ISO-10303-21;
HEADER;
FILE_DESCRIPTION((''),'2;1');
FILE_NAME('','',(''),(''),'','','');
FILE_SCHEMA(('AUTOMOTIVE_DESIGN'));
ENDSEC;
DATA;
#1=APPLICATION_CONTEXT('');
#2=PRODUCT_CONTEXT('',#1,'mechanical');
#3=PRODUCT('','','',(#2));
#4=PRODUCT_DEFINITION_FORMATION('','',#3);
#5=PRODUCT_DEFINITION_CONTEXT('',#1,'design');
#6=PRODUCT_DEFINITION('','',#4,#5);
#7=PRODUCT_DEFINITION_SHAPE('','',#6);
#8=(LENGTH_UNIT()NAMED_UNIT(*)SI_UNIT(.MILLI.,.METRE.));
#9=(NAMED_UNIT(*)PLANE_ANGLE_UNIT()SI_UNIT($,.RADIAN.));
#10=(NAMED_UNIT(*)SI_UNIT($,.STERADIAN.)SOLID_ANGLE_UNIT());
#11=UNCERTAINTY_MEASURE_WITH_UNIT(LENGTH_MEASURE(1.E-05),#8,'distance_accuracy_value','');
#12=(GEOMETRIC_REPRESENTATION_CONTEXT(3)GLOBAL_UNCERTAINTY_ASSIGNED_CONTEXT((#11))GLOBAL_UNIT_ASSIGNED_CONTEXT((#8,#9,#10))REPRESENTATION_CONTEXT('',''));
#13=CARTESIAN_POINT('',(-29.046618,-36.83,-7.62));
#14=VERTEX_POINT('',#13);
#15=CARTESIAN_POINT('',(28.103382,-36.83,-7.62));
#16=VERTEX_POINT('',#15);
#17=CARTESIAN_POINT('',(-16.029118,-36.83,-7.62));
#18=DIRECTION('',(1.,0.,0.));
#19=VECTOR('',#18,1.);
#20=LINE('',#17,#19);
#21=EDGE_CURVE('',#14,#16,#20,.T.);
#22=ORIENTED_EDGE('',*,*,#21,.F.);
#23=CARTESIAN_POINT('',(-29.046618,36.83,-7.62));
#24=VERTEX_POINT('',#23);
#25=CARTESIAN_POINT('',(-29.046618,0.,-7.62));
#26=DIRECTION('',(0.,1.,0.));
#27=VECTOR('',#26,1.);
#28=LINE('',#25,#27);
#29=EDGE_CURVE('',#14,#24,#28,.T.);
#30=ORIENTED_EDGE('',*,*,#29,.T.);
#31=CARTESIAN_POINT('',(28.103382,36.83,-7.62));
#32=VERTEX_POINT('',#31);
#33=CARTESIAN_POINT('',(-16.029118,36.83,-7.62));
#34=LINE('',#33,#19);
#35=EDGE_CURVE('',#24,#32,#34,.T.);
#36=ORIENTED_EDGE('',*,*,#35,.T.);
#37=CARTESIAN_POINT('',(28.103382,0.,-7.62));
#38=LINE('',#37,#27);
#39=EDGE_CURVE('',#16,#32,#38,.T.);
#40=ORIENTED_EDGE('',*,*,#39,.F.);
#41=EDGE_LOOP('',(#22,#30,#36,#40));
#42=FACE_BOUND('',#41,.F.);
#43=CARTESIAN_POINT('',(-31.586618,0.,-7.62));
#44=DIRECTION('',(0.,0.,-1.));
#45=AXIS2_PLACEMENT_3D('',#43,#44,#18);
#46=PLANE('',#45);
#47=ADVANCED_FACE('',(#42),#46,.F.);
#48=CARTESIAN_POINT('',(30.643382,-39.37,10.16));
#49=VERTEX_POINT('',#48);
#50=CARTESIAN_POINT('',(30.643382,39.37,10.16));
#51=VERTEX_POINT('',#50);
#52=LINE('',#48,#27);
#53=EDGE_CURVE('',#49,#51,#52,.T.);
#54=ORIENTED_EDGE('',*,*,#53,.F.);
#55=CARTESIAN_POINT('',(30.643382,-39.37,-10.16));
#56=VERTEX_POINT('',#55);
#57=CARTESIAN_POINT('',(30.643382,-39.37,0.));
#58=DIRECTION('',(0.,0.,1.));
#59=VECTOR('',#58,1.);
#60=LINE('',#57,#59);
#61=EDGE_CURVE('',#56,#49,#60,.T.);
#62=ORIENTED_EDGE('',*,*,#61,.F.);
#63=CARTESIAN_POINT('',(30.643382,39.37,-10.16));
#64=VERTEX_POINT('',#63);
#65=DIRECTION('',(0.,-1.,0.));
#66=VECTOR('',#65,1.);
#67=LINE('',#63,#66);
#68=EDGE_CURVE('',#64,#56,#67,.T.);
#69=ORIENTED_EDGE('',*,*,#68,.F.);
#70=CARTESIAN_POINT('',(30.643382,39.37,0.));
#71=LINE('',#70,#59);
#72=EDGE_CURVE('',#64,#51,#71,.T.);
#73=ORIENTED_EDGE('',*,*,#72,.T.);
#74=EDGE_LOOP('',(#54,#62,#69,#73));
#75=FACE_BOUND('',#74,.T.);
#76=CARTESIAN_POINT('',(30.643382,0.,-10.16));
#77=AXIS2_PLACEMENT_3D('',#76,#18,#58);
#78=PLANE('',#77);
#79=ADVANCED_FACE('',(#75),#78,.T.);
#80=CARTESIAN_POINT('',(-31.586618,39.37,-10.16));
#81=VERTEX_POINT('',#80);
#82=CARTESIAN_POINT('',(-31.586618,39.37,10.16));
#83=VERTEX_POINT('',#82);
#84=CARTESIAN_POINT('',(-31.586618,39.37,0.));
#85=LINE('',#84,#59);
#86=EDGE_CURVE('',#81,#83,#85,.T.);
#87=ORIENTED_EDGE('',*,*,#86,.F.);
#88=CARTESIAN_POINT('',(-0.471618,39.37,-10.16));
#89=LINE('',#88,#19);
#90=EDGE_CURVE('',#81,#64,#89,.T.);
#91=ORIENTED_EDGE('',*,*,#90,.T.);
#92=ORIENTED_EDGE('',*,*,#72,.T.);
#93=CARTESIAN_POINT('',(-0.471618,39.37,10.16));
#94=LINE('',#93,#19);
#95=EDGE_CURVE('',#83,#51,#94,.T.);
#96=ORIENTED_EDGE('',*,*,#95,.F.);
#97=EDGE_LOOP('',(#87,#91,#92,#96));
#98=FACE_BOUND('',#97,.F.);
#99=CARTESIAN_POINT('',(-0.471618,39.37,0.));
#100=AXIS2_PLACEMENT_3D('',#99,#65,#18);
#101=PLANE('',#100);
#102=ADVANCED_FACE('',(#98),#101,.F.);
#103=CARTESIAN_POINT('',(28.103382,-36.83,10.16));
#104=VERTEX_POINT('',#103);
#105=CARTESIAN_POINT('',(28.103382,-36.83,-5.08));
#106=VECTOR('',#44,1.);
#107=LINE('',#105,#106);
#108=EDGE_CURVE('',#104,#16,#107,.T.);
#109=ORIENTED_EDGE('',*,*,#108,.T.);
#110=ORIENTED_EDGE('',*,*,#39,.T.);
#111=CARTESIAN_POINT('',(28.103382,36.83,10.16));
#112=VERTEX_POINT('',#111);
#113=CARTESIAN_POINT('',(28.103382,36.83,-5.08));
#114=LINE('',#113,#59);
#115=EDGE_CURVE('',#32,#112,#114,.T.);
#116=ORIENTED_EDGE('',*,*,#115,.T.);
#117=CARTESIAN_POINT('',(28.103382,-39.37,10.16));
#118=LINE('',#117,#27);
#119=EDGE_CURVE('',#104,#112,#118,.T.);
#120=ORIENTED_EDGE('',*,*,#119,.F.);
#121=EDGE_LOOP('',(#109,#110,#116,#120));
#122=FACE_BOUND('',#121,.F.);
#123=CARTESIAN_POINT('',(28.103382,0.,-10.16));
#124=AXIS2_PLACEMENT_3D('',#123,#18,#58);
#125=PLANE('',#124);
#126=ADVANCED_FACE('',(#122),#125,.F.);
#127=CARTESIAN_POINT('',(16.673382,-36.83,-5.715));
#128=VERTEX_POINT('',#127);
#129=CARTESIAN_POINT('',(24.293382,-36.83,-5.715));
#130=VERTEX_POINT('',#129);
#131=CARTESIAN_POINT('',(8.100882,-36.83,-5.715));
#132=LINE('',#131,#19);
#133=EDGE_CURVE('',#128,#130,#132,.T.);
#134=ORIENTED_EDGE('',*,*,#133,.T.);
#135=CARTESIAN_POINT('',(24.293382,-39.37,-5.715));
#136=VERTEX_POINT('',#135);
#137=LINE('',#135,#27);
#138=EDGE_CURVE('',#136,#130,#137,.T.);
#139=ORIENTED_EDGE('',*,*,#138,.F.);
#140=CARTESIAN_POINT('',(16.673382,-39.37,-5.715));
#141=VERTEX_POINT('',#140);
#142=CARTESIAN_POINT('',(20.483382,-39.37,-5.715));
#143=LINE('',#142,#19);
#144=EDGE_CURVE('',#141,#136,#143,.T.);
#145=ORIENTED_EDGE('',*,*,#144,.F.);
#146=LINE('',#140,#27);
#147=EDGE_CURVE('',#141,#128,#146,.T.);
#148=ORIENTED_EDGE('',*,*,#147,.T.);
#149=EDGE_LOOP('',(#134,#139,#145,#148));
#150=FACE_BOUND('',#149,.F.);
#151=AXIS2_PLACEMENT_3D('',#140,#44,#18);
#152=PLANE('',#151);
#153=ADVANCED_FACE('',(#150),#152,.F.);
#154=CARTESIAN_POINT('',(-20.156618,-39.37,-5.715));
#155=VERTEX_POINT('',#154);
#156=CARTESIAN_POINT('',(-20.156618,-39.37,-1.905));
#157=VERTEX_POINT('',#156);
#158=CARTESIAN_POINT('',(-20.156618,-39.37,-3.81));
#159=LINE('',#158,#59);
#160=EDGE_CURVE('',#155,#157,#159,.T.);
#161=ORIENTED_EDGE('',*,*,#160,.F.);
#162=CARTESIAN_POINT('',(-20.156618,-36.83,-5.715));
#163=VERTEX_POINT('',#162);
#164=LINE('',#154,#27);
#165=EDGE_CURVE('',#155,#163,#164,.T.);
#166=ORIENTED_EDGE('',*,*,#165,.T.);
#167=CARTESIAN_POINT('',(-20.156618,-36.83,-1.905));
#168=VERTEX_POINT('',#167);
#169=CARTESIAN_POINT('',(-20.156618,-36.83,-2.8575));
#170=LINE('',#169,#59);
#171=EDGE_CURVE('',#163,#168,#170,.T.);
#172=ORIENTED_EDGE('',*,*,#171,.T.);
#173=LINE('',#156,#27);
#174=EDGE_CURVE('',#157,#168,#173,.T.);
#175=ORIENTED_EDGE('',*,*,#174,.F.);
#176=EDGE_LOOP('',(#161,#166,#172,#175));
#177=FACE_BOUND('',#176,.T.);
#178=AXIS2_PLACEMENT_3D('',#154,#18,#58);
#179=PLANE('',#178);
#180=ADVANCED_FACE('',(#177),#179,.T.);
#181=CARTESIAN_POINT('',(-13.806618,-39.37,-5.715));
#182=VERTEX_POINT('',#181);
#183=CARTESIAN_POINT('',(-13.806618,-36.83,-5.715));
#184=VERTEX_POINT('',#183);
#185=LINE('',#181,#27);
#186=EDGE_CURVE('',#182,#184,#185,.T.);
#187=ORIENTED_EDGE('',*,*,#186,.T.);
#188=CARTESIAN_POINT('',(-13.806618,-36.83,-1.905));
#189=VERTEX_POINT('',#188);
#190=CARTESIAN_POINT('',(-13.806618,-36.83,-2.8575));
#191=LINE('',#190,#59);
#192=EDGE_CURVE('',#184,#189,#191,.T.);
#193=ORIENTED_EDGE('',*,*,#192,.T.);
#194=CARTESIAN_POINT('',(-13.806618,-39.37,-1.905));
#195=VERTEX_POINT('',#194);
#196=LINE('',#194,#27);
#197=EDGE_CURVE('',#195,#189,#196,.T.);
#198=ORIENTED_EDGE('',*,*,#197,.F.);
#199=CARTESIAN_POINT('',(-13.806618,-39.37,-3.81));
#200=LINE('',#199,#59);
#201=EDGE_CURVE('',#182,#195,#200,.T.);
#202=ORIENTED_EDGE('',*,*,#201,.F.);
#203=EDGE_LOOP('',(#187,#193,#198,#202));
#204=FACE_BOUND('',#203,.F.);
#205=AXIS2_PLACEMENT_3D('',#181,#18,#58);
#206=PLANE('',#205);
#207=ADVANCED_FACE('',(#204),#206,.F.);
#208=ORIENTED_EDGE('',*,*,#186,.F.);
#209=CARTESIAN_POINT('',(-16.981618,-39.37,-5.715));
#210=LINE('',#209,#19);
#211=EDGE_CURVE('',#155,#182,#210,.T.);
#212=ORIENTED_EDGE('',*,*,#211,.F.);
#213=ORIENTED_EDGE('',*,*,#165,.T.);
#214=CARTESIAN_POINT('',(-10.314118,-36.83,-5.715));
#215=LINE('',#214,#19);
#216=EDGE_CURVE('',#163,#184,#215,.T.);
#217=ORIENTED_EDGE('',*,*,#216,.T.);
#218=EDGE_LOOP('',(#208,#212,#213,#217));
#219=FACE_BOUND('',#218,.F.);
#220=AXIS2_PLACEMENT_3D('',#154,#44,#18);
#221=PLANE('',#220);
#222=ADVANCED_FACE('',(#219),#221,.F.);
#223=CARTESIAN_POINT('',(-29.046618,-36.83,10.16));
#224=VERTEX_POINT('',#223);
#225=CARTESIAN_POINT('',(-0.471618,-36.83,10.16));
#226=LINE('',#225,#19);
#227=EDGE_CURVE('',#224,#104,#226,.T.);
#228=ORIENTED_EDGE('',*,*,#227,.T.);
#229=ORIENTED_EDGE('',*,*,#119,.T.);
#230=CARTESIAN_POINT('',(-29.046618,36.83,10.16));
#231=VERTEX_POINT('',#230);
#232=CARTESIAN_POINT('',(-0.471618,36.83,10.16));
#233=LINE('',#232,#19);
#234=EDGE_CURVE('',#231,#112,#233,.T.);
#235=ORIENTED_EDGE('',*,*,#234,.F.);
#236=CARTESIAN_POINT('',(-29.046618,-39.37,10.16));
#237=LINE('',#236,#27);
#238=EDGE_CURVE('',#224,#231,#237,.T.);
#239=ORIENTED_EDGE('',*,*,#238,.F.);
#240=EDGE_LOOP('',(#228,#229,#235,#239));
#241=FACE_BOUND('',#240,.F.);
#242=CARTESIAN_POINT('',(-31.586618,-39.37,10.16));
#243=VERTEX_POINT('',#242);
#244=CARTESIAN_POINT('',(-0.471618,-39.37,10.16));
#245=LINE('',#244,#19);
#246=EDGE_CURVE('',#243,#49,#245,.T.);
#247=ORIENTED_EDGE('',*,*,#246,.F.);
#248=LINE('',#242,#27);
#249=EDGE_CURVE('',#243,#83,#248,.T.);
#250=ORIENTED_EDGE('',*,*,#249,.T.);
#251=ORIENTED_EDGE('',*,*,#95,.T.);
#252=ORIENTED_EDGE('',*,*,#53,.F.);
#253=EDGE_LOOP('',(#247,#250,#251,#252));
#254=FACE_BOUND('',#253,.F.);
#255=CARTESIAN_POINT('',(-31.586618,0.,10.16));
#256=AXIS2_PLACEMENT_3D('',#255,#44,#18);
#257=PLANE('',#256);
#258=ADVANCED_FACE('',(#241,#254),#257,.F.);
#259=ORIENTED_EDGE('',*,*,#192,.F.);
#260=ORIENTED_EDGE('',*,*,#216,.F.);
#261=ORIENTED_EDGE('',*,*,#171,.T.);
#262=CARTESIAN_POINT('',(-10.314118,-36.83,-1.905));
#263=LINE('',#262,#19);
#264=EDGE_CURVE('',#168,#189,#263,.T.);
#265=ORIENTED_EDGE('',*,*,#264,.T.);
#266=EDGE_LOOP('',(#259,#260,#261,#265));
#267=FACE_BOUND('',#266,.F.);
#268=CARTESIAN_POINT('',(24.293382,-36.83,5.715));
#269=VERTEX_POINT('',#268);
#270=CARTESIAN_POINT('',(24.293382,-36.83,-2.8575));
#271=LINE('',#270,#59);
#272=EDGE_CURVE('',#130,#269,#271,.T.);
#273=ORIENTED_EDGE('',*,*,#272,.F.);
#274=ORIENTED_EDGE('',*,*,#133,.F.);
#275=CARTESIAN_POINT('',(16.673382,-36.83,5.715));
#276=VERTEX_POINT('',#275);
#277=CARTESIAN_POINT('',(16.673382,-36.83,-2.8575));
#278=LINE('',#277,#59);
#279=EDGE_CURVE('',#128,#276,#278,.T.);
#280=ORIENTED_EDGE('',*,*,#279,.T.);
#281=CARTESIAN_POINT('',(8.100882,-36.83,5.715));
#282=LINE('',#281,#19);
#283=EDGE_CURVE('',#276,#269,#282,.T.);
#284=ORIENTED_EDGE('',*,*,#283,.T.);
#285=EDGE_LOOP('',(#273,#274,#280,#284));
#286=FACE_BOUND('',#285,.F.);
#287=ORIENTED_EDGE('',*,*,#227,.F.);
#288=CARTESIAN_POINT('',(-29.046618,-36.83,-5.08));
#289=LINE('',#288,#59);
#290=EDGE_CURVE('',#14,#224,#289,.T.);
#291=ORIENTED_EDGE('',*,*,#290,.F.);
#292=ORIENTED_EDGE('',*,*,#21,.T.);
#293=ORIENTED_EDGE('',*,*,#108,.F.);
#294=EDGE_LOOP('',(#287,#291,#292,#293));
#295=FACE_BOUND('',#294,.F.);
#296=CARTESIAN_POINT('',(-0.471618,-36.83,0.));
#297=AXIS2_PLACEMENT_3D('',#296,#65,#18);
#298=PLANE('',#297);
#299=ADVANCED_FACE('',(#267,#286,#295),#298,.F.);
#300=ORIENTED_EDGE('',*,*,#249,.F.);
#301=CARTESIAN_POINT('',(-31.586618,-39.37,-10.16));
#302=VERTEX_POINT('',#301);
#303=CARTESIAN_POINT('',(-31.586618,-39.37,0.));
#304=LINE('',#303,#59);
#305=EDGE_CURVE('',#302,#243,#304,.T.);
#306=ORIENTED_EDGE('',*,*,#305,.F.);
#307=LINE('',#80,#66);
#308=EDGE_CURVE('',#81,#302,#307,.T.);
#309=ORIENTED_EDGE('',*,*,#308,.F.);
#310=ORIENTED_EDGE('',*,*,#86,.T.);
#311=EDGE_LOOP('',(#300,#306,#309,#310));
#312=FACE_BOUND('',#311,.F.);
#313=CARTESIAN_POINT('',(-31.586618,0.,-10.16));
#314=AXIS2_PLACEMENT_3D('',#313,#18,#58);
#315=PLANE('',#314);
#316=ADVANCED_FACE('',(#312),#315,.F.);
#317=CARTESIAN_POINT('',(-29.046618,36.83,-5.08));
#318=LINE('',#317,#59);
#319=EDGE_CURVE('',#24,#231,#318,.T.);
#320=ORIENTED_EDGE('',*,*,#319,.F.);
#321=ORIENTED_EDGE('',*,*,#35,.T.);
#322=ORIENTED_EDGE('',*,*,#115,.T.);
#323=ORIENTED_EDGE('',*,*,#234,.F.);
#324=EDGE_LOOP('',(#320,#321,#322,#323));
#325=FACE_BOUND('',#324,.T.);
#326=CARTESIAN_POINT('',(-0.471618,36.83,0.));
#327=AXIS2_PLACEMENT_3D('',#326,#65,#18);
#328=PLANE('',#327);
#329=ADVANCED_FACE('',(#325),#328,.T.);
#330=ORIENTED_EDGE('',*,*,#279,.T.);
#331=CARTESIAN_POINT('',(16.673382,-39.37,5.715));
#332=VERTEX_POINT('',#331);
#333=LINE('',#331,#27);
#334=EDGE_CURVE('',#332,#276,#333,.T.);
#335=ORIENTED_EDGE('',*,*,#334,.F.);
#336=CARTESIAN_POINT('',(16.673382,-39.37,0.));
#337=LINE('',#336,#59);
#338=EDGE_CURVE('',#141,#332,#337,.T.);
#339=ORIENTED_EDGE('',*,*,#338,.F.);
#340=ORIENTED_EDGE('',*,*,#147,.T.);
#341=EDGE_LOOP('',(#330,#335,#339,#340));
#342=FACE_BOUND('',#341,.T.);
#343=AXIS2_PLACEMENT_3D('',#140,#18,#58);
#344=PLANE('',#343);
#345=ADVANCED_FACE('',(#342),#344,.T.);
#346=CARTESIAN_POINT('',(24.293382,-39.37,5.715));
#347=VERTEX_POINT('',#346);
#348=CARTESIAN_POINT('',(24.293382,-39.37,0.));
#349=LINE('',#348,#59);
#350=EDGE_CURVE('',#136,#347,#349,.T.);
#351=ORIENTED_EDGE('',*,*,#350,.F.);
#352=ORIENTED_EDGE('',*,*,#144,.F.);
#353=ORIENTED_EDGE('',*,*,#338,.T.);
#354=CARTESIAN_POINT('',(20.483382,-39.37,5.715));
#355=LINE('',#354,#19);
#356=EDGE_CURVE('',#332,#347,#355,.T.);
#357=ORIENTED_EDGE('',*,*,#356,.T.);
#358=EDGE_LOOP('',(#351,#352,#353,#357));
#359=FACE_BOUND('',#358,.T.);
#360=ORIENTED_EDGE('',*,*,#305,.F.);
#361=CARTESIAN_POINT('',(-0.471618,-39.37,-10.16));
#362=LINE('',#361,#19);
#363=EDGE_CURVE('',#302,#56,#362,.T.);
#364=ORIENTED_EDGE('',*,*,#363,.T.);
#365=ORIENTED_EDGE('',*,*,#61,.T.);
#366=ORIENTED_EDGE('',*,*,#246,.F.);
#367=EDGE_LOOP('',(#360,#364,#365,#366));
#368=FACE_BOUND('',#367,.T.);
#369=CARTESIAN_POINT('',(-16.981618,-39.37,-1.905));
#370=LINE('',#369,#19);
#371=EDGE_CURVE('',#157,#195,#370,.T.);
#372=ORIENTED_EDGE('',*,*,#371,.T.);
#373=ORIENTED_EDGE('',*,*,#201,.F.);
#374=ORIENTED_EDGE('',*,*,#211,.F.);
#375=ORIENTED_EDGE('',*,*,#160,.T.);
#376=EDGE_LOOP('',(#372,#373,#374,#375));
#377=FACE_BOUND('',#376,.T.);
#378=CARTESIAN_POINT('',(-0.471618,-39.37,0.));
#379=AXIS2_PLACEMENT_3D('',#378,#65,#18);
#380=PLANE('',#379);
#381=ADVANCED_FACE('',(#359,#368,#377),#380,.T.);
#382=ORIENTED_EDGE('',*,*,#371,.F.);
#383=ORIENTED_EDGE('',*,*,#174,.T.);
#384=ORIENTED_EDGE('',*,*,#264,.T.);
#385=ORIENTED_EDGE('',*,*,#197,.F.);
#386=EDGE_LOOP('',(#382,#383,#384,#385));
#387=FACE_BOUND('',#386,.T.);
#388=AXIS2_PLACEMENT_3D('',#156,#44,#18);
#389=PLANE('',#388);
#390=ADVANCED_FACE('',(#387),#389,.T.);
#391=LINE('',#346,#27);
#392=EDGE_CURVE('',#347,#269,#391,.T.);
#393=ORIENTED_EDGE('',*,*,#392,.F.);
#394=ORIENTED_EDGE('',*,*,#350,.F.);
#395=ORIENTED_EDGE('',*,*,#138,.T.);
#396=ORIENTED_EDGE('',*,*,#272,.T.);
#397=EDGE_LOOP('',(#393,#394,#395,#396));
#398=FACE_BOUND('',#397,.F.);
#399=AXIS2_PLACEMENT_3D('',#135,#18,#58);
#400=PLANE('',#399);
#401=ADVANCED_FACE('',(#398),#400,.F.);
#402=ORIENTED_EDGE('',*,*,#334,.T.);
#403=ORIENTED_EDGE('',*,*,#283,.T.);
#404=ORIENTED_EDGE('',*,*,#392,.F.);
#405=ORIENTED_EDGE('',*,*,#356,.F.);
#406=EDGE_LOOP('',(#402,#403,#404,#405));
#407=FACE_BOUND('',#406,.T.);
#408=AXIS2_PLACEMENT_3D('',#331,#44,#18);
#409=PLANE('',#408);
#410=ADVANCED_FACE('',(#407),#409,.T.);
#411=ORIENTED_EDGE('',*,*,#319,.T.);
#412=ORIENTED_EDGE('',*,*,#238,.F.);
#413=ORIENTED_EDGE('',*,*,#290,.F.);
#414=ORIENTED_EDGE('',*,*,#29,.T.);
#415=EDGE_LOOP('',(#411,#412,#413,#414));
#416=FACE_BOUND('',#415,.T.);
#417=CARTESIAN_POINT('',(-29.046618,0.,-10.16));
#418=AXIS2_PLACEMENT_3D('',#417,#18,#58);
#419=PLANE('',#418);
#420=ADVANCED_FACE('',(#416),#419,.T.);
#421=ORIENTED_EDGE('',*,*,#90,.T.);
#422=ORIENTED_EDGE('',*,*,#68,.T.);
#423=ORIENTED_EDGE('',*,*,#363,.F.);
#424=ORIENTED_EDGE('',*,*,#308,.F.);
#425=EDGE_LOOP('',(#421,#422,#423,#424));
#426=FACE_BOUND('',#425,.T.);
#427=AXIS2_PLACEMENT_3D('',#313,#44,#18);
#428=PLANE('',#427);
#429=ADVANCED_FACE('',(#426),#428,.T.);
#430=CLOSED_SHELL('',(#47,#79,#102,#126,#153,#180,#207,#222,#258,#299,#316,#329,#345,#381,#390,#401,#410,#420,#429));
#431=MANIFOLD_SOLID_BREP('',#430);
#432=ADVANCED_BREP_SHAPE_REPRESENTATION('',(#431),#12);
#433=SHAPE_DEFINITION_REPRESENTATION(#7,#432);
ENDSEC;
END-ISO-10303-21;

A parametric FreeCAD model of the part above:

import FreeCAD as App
import Part
import Sketcher

V = App.Vector
Q = App.Units.Quantity


def faces_at(feature, points):
    """Names of the faces that lie closest to the given points."""
    faces = feature.Shape.Faces
    near = lambda p: min(range(len(faces)), key=lambda i: faces[i].distToShape(Part.Vertex(*p))[0])
    return sorted({f"Face{near(p) + 1}" for p in points})


def add_polygon(sketch, points):
    """Adds a closed chain of lines whose ends are joined by coincident constraints."""
    first, n = sketch.GeometryCount, len(points)
    for a, b in zip(points, points[1:] + points[:1]):
        sketch.addGeometry(Part.LineSegment(App.Vector(*a, 0), App.Vector(*b, 0)), False)
    for i in range(n):
        sketch.addConstraint(Sketcher.Constraint("Coincident", first + i, 2, first + (i + 1) % n, 1))

doc = App.newDocument("Part")
body = doc.addObject("PartDesign::Body", "Body")

# Sketch on XZ plane
sketch1 = doc.addObject("Sketcher::SketchObject", "Sketch")
body.addObject(sketch1)
sketch1.AttachmentSupport = (doc.XZ_Plane, [""])
sketch1.MapMode = "FlatFace"
add_polygon(sketch1, [(-31.586618, 10.16), (-31.586618, -10.16), (30.643382, -10.16), (30.643382, 10.16)])  # lines 0-3
sketch1.addConstraint([
    Sketcher.Constraint("Vertical", 0),
    Sketcher.Constraint("Horizontal", 1),
    Sketcher.Constraint("Vertical", 2),
    Sketcher.Constraint("Horizontal", 3),
    Sketcher.Constraint("DistanceY", 0, 2, 0, 1, Q("0.8 in")),
    Sketcher.Constraint("DistanceX", 1, 1, 1, 2, Q("2.45 in")),
    Sketcher.Constraint("DistanceY", 0, 2, -1, 1, Q("0.4 in")),
    Sketcher.Constraint("DistanceX", 0, 2, -1, 1, Q("31.586618 mm")),
])
pad1 = doc.addObject("PartDesign::Pad", "Pad")
body.addObject(pad1)
pad1.Profile = sketch1
pad1.Length = Q("3.1 in")
pad1.Midplane = True
doc.recompute()

thickness = doc.addObject("PartDesign::Thickness", "Thickness")
body.addObject(thickness)
thickness.Base = (pad1, faces_at(pad1, [(-0.472, 0, 10.16)]))
thickness.Value = Q("0.1 in")
thickness.Reversed = True
thickness.Join = "Arc"

# Sketch on XZ plane
sketch2 = doc.addObject("Sketcher::SketchObject", "Sketch001")
body.addObject(sketch2)
sketch2.AttachmentSupport = (doc.XZ_Plane, [""])
sketch2.MapMode = "FlatFace"
sketch2.AttachmentOffset = App.Placement(V(0, 0, 1.55 * 25.4), App.Rotation())
add_polygon(sketch2, [(-20.156618, -1.905), (-20.156618, -5.715), (-13.806618, -5.715), (-13.806618, -1.905)])  # lines 0-3
add_polygon(sketch2, [(16.673382, 5.715), (16.673382, -5.715), (24.293382, -5.715), (24.293382, 5.715)])  # lines 4-7
sketch2.addConstraint([
    Sketcher.Constraint("Vertical", 0),
    Sketcher.Constraint("Horizontal", 1),
    Sketcher.Constraint("Vertical", 2),
    Sketcher.Constraint("Horizontal", 3),
    Sketcher.Constraint("Vertical", 4),
    Sketcher.Constraint("Horizontal", 5),
    Sketcher.Constraint("Vertical", 6),
    Sketcher.Constraint("Horizontal", 7),
    Sketcher.Constraint("Horizontal", 1, 2, 4, 2),
    Sketcher.Constraint("DistanceX", 5, 1, 5, 2, Q("0.3 in")),
    Sketcher.Constraint("DistanceX", 1, 1, 1, 2, Q("0.25 in")),
    Sketcher.Constraint("DistanceY", 0, 2, 0, 1, Q("0.15 in")),
    Sketcher.Constraint("DistanceY", 4, 2, 4, 1, Q("0.45 in")),
    Sketcher.Constraint("DistanceX", 1, 2, 4, 2, Q("1.2 in")),
    Sketcher.Constraint("DistanceY", 0, 2, -1, 1, Q("0.225 in")),
    Sketcher.Constraint("DistanceX", 0, 2, -1, 1, Q("20.156618 mm")),
])
pocket1 = doc.addObject("PartDesign::Pocket", "Pocket")
body.addObject(pocket1)
pocket1.Profile = sketch2
pocket1.Length = Q("1 in")

doc.recompute()
